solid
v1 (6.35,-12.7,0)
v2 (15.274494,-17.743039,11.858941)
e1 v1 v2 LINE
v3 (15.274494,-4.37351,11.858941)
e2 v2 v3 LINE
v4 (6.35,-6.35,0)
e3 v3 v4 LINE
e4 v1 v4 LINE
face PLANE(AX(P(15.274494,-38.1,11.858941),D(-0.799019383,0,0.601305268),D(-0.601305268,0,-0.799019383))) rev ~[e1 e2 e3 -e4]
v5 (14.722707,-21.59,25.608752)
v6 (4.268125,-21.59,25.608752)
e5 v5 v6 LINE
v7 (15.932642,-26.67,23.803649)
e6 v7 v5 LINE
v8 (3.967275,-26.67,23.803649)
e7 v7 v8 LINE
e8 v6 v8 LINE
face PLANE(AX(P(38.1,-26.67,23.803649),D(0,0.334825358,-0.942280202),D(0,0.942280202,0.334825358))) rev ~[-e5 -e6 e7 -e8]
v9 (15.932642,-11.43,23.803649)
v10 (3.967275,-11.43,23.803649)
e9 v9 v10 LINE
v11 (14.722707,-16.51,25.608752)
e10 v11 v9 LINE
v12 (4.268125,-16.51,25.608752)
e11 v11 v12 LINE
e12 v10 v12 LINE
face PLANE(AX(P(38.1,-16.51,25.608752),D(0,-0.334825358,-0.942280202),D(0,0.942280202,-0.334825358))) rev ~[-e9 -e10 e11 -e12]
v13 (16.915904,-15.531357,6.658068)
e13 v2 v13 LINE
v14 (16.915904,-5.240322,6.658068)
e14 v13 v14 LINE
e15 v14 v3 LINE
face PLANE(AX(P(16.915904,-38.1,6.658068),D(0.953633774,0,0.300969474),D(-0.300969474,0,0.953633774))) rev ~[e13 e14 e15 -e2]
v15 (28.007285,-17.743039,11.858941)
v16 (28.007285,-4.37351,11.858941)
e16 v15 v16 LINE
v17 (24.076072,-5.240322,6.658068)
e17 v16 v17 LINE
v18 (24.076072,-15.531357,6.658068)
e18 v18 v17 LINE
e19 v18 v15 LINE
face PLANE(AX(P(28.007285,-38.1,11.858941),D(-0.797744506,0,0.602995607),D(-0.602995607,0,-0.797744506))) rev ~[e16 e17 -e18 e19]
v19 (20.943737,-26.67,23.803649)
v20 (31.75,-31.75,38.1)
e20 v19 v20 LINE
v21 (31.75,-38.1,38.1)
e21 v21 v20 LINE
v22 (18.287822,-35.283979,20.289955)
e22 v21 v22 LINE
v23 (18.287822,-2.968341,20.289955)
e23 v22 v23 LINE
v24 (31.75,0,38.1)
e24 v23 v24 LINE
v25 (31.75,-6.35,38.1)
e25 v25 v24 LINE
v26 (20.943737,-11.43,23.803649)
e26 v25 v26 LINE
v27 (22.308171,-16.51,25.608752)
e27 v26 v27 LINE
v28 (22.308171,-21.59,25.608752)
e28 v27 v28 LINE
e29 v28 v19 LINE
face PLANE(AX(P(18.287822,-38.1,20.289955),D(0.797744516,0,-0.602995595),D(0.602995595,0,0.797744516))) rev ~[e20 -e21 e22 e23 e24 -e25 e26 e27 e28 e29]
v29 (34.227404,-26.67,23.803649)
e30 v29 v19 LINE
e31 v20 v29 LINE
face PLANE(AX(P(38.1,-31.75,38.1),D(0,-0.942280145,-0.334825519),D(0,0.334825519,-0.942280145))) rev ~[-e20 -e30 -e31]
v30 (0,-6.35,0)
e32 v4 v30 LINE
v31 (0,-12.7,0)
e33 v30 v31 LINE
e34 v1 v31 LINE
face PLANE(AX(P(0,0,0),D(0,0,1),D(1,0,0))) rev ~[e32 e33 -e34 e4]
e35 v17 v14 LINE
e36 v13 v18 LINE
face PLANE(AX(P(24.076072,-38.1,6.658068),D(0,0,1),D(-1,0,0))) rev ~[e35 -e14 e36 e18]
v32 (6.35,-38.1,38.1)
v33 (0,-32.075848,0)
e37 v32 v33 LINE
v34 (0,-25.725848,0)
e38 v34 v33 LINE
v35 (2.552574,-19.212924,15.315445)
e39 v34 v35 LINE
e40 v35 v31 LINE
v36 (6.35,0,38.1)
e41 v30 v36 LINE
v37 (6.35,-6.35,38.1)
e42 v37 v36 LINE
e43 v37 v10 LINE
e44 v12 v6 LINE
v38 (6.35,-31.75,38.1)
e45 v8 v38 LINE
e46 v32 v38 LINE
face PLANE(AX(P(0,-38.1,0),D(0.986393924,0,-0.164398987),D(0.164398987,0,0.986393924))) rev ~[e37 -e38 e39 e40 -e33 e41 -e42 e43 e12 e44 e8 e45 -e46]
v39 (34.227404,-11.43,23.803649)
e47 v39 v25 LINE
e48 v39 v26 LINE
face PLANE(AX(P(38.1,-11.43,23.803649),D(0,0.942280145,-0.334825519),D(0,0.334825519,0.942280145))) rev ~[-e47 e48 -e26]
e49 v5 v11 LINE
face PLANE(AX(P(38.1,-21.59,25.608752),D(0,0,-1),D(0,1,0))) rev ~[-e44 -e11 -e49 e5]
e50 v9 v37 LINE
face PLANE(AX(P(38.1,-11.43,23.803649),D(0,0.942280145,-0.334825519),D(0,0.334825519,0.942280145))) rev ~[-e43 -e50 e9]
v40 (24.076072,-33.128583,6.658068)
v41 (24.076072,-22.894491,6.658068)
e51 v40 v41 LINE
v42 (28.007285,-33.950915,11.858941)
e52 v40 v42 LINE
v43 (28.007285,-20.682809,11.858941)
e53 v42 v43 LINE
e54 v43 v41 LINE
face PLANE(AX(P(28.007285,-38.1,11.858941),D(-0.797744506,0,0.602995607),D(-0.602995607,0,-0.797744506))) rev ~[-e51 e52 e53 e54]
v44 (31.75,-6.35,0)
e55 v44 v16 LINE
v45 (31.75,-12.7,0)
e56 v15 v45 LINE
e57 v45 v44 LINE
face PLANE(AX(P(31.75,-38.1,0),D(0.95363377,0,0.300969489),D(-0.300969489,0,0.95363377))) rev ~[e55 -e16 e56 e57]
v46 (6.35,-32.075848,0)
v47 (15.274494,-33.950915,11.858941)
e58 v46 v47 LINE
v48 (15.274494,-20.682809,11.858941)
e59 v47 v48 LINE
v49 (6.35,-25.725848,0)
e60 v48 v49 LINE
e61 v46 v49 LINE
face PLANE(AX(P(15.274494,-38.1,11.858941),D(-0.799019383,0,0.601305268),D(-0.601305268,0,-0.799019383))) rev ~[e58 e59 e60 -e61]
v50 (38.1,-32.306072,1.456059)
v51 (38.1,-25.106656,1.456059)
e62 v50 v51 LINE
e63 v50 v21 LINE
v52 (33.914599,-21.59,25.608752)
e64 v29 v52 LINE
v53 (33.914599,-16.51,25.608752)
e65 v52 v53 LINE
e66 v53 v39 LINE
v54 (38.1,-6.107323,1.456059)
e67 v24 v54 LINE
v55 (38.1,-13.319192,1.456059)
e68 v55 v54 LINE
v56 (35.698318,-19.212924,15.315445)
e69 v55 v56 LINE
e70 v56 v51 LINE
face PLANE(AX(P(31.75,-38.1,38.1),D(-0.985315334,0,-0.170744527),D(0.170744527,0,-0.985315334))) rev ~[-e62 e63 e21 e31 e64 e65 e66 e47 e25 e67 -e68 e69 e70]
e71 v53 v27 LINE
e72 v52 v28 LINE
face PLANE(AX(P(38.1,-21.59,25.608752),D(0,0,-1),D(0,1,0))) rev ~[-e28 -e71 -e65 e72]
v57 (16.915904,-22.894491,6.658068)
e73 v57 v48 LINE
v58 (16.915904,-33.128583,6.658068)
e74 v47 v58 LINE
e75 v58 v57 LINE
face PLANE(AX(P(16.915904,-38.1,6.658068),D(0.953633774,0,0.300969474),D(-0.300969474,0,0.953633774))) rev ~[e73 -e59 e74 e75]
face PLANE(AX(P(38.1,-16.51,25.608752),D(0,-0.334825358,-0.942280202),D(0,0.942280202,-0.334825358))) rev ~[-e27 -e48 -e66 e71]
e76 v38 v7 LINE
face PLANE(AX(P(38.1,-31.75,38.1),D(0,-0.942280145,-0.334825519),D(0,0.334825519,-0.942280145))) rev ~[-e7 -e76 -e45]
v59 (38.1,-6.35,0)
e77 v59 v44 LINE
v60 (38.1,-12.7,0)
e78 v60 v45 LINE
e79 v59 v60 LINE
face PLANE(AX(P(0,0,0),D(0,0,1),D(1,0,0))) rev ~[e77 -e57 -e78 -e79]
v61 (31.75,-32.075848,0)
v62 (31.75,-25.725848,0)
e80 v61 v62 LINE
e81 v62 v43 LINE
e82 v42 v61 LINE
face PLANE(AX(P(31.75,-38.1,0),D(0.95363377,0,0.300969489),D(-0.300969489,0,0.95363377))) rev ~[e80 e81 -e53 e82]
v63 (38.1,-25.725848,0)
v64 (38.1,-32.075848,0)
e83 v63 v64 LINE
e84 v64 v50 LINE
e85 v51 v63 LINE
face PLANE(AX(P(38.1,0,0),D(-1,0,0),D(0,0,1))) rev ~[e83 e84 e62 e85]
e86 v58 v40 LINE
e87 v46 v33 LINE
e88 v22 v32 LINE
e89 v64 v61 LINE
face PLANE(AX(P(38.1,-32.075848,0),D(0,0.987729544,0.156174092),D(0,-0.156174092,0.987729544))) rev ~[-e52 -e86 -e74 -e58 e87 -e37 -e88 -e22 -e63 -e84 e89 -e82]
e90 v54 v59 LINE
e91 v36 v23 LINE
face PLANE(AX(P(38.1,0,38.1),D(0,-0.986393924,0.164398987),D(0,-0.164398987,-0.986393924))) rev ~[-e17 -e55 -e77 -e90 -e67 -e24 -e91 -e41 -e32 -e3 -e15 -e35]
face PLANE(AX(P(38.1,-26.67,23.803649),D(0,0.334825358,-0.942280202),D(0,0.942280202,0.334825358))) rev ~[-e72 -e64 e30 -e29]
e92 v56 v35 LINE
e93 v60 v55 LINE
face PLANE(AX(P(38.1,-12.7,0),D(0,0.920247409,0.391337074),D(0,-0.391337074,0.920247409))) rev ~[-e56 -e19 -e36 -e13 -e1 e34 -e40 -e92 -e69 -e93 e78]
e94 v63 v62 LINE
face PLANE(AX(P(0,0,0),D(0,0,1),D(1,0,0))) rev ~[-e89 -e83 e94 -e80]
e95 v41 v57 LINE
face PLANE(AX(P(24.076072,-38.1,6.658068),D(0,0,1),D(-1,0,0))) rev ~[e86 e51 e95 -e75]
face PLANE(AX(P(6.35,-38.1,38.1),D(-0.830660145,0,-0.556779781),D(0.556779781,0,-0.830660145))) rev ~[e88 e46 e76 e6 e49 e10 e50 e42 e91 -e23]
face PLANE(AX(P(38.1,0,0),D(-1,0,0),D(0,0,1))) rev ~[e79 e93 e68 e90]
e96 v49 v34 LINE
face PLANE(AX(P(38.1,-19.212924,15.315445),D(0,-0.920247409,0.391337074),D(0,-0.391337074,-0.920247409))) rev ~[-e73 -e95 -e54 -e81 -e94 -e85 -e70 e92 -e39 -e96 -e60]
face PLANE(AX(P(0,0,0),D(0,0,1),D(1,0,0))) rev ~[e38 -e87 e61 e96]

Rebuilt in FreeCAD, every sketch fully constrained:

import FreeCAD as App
import Part
import Sketcher

V = App.Vector
Q = App.Units.Quantity


def add_polygon(sketch, points):
    """Adds a closed chain of lines whose ends are joined by coincident constraints."""
    first, n = sketch.GeometryCount, len(points)
    for a, b in zip(points, points[1:] + points[:1]):
        sketch.addGeometry(Part.LineSegment(App.Vector(*a, 0), App.Vector(*b, 0)), False)
    for i in range(n):
        sketch.addConstraint(Sketcher.Constraint("Coincident", first + i, 2, first + (i + 1) % n, 1))

doc = App.newDocument("Part")
body = doc.addObject("PartDesign::Body", "Body")

# Sketch on XZ plane
sketch1 = doc.addObject("Sketcher::SketchObject", "Sketch")
body.addObject(sketch1)
sketch1.AttachmentSupport = (doc.XZ_Plane, [""])
sketch1.MapMode = "FlatFace"
add_polygon(sketch1, [(0, 38), (0, 0), (38, 0), (38, 38)])  # lines 0-3
sketch1.addConstraint(Sketcher.Constraint("Vertical", 0))
sketch1.addConstraint(Sketcher.Constraint("Horizontal", 1))
sketch1.addConstraint(Sketcher.Constraint("Vertical", 2))
sketch1.addConstraint(Sketcher.Constraint("Horizontal", 3))
sketch1.addConstraint(Sketcher.Constraint("Coincident", 0, 2, -1, 1))
sketch1.addConstraint(Sketcher.Constraint("Equal", 3, 0))
sketch1.addConstraint(Sketcher.Constraint("DistanceX", 1, 1, 1, 2, Q("1.5 in")))
pad1 = doc.addObject("PartDesign::Pad", "Pad")
body.addObject(pad1)
pad1.Profile = sketch1
pad1.Length = Q("1.5 in")

# Sketch on YZ plane
sketch2 = doc.addObject("Sketcher::SketchObject", "Sketch001")
body.addObject(sketch2)
sketch2.AttachmentSupport = (doc.YZ_Plane, [""])
sketch2.MapMode = "FlatFace"
sketch2.AttachmentOffset = App.Placement(V(0, 0, 1.5 * 25.4), App.Rotation())
add_polygon(sketch2, [(-38, 38), (-38, 0), (-32, 0)])  # lines 0-2
add_polygon(sketch2, [(-6, 38), (-32, 38), (-27, 24), (-22, 26), (-17, 26), (-11, 24)])  # lines 3-8
add_polygon(sketch2, [(0, 38), (-6, 0), (0, 0)])  # lines 9-11
add_polygon(sketch2, [(-19, 15), (-26, 0), (-13, 0)])  # lines 12-14
sketch2.addConstraint(Sketcher.Constraint("Vertical", 0))
sketch2.addConstraint(Sketcher.Constraint("Horizontal", 1))
sketch2.addConstraint(Sketcher.Constraint("Horizontal", 3))
sketch2.addConstraint(Sketcher.Constraint("Horizontal", 6))
sketch2.addConstraint(Sketcher.Constraint("Horizontal", 10))
sketch2.addConstraint(Sketcher.Constraint("Vertical", 11))
sketch2.addConstraint(Sketcher.Constraint("Horizontal", 13))
sketch2.addConstraint(Sketcher.Constraint("Coincident", 10, 2, -1, 1))
sketch2.addConstraint(Sketcher.Constraint("PointOnObject", 0, 2, -1))
sketch2.addConstraint(Sketcher.Constraint("PointOnObject", 12, 2, -1))
sketch2.addConstraint(Sketcher.Constraint("Perpendicular", 4, 5))
sketch2.addConstraint(Sketcher.Constraint("Perpendicular", 7, 8))
sketch2.addConstraint(Sketcher.Constraint("Horizontal", 2, 2, 3, 2))
sketch2.addConstraint(Sketcher.Constraint("Horizontal", 4, 2, 7, 2))
sketch2.addConstraint(Sketcher.Constraint("Horizontal", 8, 2, 11, 2))
sketch2.addConstraint(Sketcher.Constraint("Vertical", 8, 2, 9, 2))
sketch2.addConstraint(Sketcher.Constraint("Equal", 5, 7))
sketch2.addConstraint(Sketcher.Constraint("Equal", 12, 14))
sketch2.addConstraint(Sketcher.Constraint("DistanceX", 3, 2, 3, 1, Q("1 in")))
sketch2.addConstraint(Sketcher.Constraint("DistanceX", 6, 1, 6, 2, Q("0.2 in")))
sketch2.addConstraint(Sketcher.Constraint("DistanceY", 0, 2, 0, 1, Q("1.5 in")))
sketch2.addConstraint(Sketcher.Constraint("DistanceX", 10, 1, 10, 2, Q("0.25 in")))
sketch2.addConstraint(Sketcher.Constraint("DistanceX", 0, 2, -1, 1, Q("1.5 in")))
sketch2.addConstraint(Sketcher.Constraint("DistanceX", 13, 2, -1, 1, Q("0.5 in")))
sketch2.addConstraint(Sketcher.Constraint("DistanceX", 3, 2, 4, 2, Q("0.2 in")))
sketch2.addConstraint(Sketcher.Constraint("DistanceX", 1, 2, 12, 2, Q("0.25 in")))
sketch2.addConstraint(Sketcher.Constraint("Distance", 4, 15.172081))
sketch2.addConstraint(Sketcher.Constraint("DistanceX", 1, 1, 1, 2, 6.024152))
sketch2.addConstraint(Sketcher.Constraint("Distance", 12, 16.642747))
pocket1 = doc.addObject("PartDesign::Pocket", "Pocket")
body.addObject(pocket1)
pocket1.Profile = sketch2
pocket1.Length = Q("1.5 in")

# Sketch on XZ plane
sketch3 = doc.addObject("Sketcher::SketchObject", "Sketch002")
body.addObject(sketch3)
sketch3.AttachmentSupport = (doc.XZ_Plane, [""])
sketch3.MapMode = "FlatFace"
sketch3.AttachmentOffset = App.Placement(V(0, 0, 1.5 * 25.4), App.Rotation())
add_polygon(sketch3, [(0, 38), (0, 0), (6, 38)])  # lines 0-2
add_polygon(sketch3, [(38, 38), (32, 38), (38, 1)])  # lines 3-5
add_polygon(sketch3, [(15, 12), (6, 0), (32, 0), (28, 12), (24, 7), (17, 7)])  # lines 6-11
add_polygon(sketch3, [(32, 38), (6, 38), (18, 20)])  # lines 12-14
sketch3.addConstraint(Sketcher.Constraint("Vertical", 0))
sketch3.addConstraint(Sketcher.Constraint("Horizontal", 2))
sketch3.addConstraint(Sketcher.Constraint("Horizontal", 3))
sketch3.addConstraint(Sketcher.Constraint("Vertical", 5))
sketch3.addConstraint(Sketcher.Constraint("Horizontal", 7))
sketch3.addConstraint(Sketcher.Constraint("Horizontal", 10))
sketch3.addConstraint(Sketcher.Constraint("Horizontal", 12))
sketch3.addConstraint(Sketcher.Constraint("Coincident", 0, 2, -1, 1))
sketch3.addConstraint(Sketcher.Constraint("Coincident", 12, 2, 1, 2))
sketch3.addConstraint(Sketcher.Constraint("Coincident", 14, 2, 3, 2))
sketch3.addConstraint(Sketcher.Constraint("PointOnObject", 6, 2, -1))
sketch3.addConstraint(Sketcher.Constraint("Parallel", 8, 11))
sketch3.addConstraint(Sketcher.Constraint("Parallel", 9, 14))
sketch3.addConstraint(Sketcher.Constraint("Horizontal", 8, 2, 11, 2))
sketch3.addConstraint(Sketcher.Constraint("Vertical", 1, 2, 6, 2))
sketch3.addConstraint(Sketcher.Constraint("Vertical", 3, 2, 7, 2))
sketch3.addConstraint(Sketcher.Constraint("Equal", 2, 3))
sketch3.addConstraint(Sketcher.Constraint("DistanceX", 7, 1, 7, 2, Q("1 in")))
sketch3.addConstraint(Sketcher.Constraint("DistanceY", 0, 2, 0, 1, Q("1.5 in")))
sketch3.addConstraint(Sketcher.Constraint("DistanceX", 2, 2, 2, 1, Q("0.25 in")))
sketch3.addConstraint(Sketcher.Constraint("Distance", 14, 22.3255))
sketch3.addConstraint(Sketcher.Constraint("DistanceY", 5, 1, 5, 2, 36.643941))
sketch3.addConstraint(Sketcher.Constraint("Distance", 6, 14.841869))
sketch3.addConstraint(Sketcher.Constraint("Distance", 8, 12.43553))
sketch3.addConstraint(Sketcher.Constraint("DistanceX", 10, 2, 10, 1, 7.160168))
sketch3.addConstraint(Sketcher.Constraint("DistanceY", -1, 1, 8, 2, 11.858941))
sketch3.addConstraint(Sketcher.Constraint("DistanceX", -1, 1, 9, 2, 24.076072))
pocket2 = doc.addObject("PartDesign::Pocket", "Pocket001")
body.addObject(pocket2)
pocket2.Profile = sketch3
pocket2.Length = Q("1.5 in")

doc.recompute()
